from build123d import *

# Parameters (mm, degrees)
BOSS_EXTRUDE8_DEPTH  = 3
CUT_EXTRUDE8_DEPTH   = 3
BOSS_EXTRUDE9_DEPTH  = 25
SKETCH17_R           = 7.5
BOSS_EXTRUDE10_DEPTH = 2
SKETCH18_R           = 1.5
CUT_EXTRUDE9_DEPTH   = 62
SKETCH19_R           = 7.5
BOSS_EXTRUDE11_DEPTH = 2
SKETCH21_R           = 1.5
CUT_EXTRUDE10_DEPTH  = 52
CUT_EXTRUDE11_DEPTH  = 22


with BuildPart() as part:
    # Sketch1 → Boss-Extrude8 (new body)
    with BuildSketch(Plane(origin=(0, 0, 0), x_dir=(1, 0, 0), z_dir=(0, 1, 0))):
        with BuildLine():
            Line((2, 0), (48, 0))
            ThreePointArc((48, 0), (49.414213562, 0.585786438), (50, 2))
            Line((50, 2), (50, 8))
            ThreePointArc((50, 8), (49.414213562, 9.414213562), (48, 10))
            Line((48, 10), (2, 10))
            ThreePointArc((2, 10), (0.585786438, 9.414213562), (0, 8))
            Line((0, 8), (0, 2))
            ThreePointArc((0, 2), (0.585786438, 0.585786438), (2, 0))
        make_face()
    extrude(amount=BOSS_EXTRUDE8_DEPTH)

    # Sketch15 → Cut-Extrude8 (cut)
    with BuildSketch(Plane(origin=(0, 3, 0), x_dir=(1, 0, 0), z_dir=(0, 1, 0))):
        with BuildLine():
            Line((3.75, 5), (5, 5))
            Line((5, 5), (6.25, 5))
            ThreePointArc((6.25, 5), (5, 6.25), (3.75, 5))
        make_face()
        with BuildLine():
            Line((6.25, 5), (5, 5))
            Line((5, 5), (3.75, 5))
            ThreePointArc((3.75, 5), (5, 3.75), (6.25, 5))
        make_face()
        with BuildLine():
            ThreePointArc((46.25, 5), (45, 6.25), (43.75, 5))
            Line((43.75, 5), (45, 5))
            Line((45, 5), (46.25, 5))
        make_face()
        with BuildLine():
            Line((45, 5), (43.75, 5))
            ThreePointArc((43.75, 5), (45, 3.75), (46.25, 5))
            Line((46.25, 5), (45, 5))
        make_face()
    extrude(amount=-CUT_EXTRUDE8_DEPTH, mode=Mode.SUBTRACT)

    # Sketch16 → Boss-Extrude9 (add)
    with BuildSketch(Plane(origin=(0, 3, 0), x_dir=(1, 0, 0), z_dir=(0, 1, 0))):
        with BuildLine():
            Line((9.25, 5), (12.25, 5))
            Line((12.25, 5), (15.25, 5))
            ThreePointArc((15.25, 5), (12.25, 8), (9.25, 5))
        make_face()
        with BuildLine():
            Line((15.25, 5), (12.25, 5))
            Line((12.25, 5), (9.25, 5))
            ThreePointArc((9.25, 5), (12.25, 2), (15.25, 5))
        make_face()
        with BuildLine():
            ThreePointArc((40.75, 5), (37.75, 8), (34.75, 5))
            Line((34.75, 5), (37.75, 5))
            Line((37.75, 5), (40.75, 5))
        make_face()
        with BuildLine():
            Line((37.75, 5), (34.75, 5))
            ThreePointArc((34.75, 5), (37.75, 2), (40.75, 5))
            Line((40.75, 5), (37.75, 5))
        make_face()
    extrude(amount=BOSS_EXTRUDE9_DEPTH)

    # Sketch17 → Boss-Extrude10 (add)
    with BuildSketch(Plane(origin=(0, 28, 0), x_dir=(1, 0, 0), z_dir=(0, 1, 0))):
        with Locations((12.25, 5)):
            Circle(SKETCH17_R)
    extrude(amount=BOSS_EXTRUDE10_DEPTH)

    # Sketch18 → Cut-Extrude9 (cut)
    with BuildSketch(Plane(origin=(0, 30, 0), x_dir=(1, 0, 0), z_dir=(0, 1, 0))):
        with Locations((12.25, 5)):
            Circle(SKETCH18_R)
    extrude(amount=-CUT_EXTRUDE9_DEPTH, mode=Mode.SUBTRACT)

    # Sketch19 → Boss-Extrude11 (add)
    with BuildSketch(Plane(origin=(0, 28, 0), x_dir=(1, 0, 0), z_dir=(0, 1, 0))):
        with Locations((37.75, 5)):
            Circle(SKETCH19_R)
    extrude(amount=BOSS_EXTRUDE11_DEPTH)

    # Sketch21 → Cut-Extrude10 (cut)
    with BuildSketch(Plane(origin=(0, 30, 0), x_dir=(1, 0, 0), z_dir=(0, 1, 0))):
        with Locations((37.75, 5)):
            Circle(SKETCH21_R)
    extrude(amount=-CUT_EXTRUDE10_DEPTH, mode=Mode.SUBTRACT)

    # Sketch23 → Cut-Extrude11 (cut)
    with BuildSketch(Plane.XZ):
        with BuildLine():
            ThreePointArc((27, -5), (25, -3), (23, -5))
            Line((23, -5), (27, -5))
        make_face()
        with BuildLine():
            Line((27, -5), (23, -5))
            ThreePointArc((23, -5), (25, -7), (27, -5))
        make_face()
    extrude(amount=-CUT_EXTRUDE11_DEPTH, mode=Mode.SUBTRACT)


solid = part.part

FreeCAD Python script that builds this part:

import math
import FreeCAD as App
import Part
import Sketcher
Q = App.Units.Quantity

doc = App.newDocument("Part")
body = doc.addObject("PartDesign::Body", "Body")

# Sketch on XZ plane
sketch1 = doc.addObject("Sketcher::SketchObject", "Sketch")
body.addObject(sketch1)
sketch1.AttachmentSupport = (doc.XZ_Plane, [""])
sketch1.MapMode = "FlatFace"
sketch1.addGeometry([
    Part.LineSegment(App.Vector(2, 0, 0), App.Vector(48, 0, 0)),  # 0
    Part.ArcOfCircle(Part.Circle(App.Vector(48, -2, 0), App.Vector(0, 0, 1), 2), math.radians(0), math.radians(90)),  # 1
    Part.LineSegment(App.Vector(50, -2, 0), App.Vector(50, -8, 0)),  # 2
    Part.ArcOfCircle(Part.Circle(App.Vector(48, -8, 0), App.Vector(0, 0, 1), 2), math.radians(-90), math.radians(0)),  # 3
    Part.LineSegment(App.Vector(48, -10, 0), App.Vector(2, -10, 0)),  # 4
    Part.ArcOfCircle(Part.Circle(App.Vector(2, -8, 0), App.Vector(0, 0, 1), 2), math.radians(-180), math.radians(-90)),  # 5
    Part.LineSegment(App.Vector(0, -8, 0), App.Vector(0, -2, 0)),  # 6
    Part.ArcOfCircle(Part.Circle(App.Vector(2, -2, 0), App.Vector(0, 0, 1), 2), math.radians(90), math.radians(180)),  # 7
], False)
sketch1.addConstraint([
    Sketcher.Constraint("Tangent", 0, 2, 1, 2),
    Sketcher.Constraint("Tangent", 1, 1, 2, 1),
    Sketcher.Constraint("Tangent", 2, 2, 3, 2),
    Sketcher.Constraint("Tangent", 3, 1, 4, 1),
    Sketcher.Constraint("Tangent", 4, 2, 5, 2),
    Sketcher.Constraint("Tangent", 5, 1, 6, 1),
    Sketcher.Constraint("Tangent", 6, 2, 7, 2),
    Sketcher.Constraint("Tangent", 7, 1, 0, 1),
    Sketcher.Constraint("Horizontal", 0),
    Sketcher.Constraint("Vertical", 2),
    Sketcher.Constraint("Horizontal", 4),
    Sketcher.Constraint("Vertical", 6),
    Sketcher.Constraint("Equal", 1, 3),
    Sketcher.Constraint("Equal", 3, 5),
    Sketcher.Constraint("Equal", 5, 7),
    Sketcher.Constraint("PointOnObject", 0, 2, -1),
    Sketcher.Constraint("PointOnObject", 5, 1, -2),
    Sketcher.Constraint("Radius", 1, Q("2 mm")),
    Sketcher.Constraint("DistanceX", 0, 1, 0, 2, Q("46 mm")),
    Sketcher.Constraint("DistanceY", 2, 2, 2, 1, Q("6 mm")),
])
pad1 = doc.addObject("PartDesign::Pad", "Pad")
body.addObject(pad1)
pad1.Profile = sketch1
pad1.Length = 3
pad1.Reversed = True

# Sketch on XZ plane
sketch2 = doc.addObject("Sketcher::SketchObject", "Sketch001")
body.addObject(sketch2)
sketch2.AttachmentSupport = (doc.XZ_Plane, [""])
sketch2.MapMode = "FlatFace"
sketch2.AttachmentOffset = App.Placement(App.Vector(0, 0, -3), App.Rotation())
sketch2.addGeometry([
    Part.Circle(App.Vector(5, -5, 0), App.Vector(0, 0, 1), 1.2),
    Part.Circle(App.Vector(45, -5, 0), App.Vector(0, 0, 1), 1.2),
], False)
sketch2.addConstraint([
    Sketcher.Constraint("Equal", 0, 1),
    Sketcher.Constraint("Horizontal", 0, 3, 1, 3),
    Sketcher.Constraint("Diameter", 0, Q("2.5 mm")),
    Sketcher.Constraint("DistanceX", -1, 1, 0, 3, Q("5 mm")),
    Sketcher.Constraint("DistanceY", 0, 3, -1, 1, Q("5 mm")),
    Sketcher.Constraint("DistanceX", -1, 1, 1, 3, Q("45 mm")),
])
pocket1 = doc.addObject("PartDesign::Pocket", "Pocket")
body.addObject(pocket1)
pocket1.Profile = sketch2
pocket1.Length = 3
pocket1.Reversed = True

# Sketch on XZ plane
sketch3 = doc.addObject("Sketcher::SketchObject", "Sketch002")
body.addObject(sketch3)
sketch3.AttachmentSupport = (doc.XZ_Plane, [""])
sketch3.MapMode = "FlatFace"
sketch3.AttachmentOffset = App.Placement(App.Vector(0, 0, -3), App.Rotation())
sketch3.addGeometry([
    Part.Circle(App.Vector(12.2, -5, 0), App.Vector(0, 0, 1), 3),
    Part.Circle(App.Vector(37.8, -5, 0), App.Vector(0, 0, 1), 3),
], False)
sketch3.addConstraint([
    Sketcher.Constraint("Equal", 0, 1),
    Sketcher.Constraint("Horizontal", 0, 3, 1, 3),
    Sketcher.Constraint("Diameter", 0, Q("6 mm")),
    Sketcher.Constraint("DistanceY", 0, 3, -1, 1, Q("5 mm")),
    Sketcher.Constraint("DistanceX", 0, 3, 1, 3, Q("25.5 mm")),
    Sketcher.Constraint("DistanceX", -1, 1, 0, 3, Q("12.25 mm")),
])
pad2 = doc.addObject("PartDesign::Pad", "Pad001")
body.addObject(pad2)
pad2.Profile = sketch3
pad2.Length = 25
pad2.Reversed = True

# Sketch on XZ plane
sketch4 = doc.addObject("Sketcher::SketchObject", "Sketch003")
body.addObject(sketch4)
sketch4.AttachmentSupport = (doc.XZ_Plane, [""])
sketch4.MapMode = "FlatFace"
sketch4.AttachmentOffset = App.Placement(App.Vector(0, 0, -28), App.Rotation())
sketch4.addGeometry(Part.Circle(App.Vector(12, -5, 0), App.Vector(0, 0, 1), 8), False)
sketch4.addConstraint([
    Sketcher.Constraint("Diameter", 0, Q("15 mm")),
    Sketcher.Constraint("DistanceY", 0, 3, -1, 1, Q("5 mm")),
    Sketcher.Constraint("DistanceX", -1, 1, 0, 3, Q("12.25 mm")),
])
pad3 = doc.addObject("PartDesign::Pad", "Pad002")
body.addObject(pad3)
pad3.Profile = sketch4
pad3.Length = 2
pad3.Reversed = True

# Sketch on XZ plane
sketch5 = doc.addObject("Sketcher::SketchObject", "Sketch004")
body.addObject(sketch5)
sketch5.AttachmentSupport = (doc.XZ_Plane, [""])
sketch5.MapMode = "FlatFace"
sketch5.AttachmentOffset = App.Placement(App.Vector(0, 0, -30), App.Rotation())
sketch5.addGeometry(Part.Circle(App.Vector(12.2, -5, 0), App.Vector(0, 0, 1), 1.5), False)
sketch5.addConstraint([
    Sketcher.Constraint("Diameter", 0, Q("3 mm")),
    Sketcher.Constraint("DistanceY", 0, 3, -1, 1, Q("5 mm")),
    Sketcher.Constraint("DistanceX", -1, 1, 0, 3, Q("12.25 mm")),
])
pocket2 = doc.addObject("PartDesign::Pocket", "Pocket001")
body.addObject(pocket2)
pocket2.Profile = sketch5
pocket2.Length = 62
pocket2.Reversed = True

# Sketch on XZ plane
sketch6 = doc.addObject("Sketcher::SketchObject", "Sketch005")
body.addObject(sketch6)
sketch6.AttachmentSupport = (doc.XZ_Plane, [""])
sketch6.MapMode = "FlatFace"
sketch6.AttachmentOffset = App.Placement(App.Vector(0, 0, -28), App.Rotation())
sketch6.addGeometry(Part.Circle(App.Vector(38, -5, 0), App.Vector(0, 0, 1), 8), False)
sketch6.addConstraint([
    Sketcher.Constraint("Diameter", 0, Q("15 mm")),
    Sketcher.Constraint("DistanceY", 0, 3, -1, 1, Q("5 mm")),
    Sketcher.Constraint("DistanceX", -1, 1, 0, 3, Q("37.75 mm")),
])
pad4 = doc.addObject("PartDesign::Pad", "Pad003")
body.addObject(pad4)
pad4.Profile = sketch6
pad4.Length = 2
pad4.Reversed = True

# Sketch on XZ plane
sketch7 = doc.addObject("Sketcher::SketchObject", "Sketch006")
body.addObject(sketch7)
sketch7.AttachmentSupport = (doc.XZ_Plane, [""])
sketch7.MapMode = "FlatFace"
sketch7.AttachmentOffset = App.Placement(App.Vector(0, 0, -30), App.Rotation())
sketch7.addGeometry(Part.Circle(App.Vector(37.8, -5, 0), App.Vector(0, 0, 1), 1.5), False)
sketch7.addConstraint([
    Sketcher.Constraint("Diameter", 0, Q("3 mm")),
    Sketcher.Constraint("DistanceY", 0, 3, -1, 1, Q("5 mm")),
    Sketcher.Constraint("DistanceX", -1, 1, 0, 3, Q("37.75 mm")),
])
pocket3 = doc.addObject("PartDesign::Pocket", "Pocket002")
body.addObject(pocket3)
pocket3.Profile = sketch7
pocket3.Length = 52
pocket3.Reversed = True

# Sketch on XZ plane
sketch8 = doc.addObject("Sketcher::SketchObject", "Sketch007")
body.addObject(sketch8)
sketch8.AttachmentSupport = (doc.XZ_Plane, [""])
sketch8.MapMode = "FlatFace"
sketch8.addGeometry(Part.Circle(App.Vector(25, -5, 0), App.Vector(0, 0, 1), 2), False)
sketch8.addConstraint([
    Sketcher.Constraint("Diameter", 0, Q("4 mm")),
    Sketcher.Constraint("DistanceX", -1, 1, 0, 3, Q("25 mm")),
    Sketcher.Constraint("DistanceY", 0, 3, -1, 1, Q("5 mm")),
])
pocket4 = doc.addObject("PartDesign::Pocket", "Pocket003")
body.addObject(pocket4)
pocket4.Profile = sketch8
pocket4.Length = 22

doc.recompute()
